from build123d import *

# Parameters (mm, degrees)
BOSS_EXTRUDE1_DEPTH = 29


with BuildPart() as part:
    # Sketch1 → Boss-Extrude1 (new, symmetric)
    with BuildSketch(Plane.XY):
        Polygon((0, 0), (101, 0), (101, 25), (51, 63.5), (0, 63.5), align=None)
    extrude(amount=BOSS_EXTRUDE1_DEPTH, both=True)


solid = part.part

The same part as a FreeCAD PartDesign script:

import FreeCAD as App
import Part
import Sketcher

V = App.Vector


def add_polygon(sketch, points):
    """Adds a closed chain of lines whose ends are joined by coincident constraints."""
    first, n = sketch.GeometryCount, len(points)
    for a, b in zip(points, points[1:] + points[:1]):
        sketch.addGeometry(Part.LineSegment(App.Vector(*a, 0), App.Vector(*b, 0)), False)
    for i in range(n):
        sketch.addConstraint(Sketcher.Constraint("Coincident", first + i, 2, first + (i + 1) % n, 1))

doc = App.newDocument("Part")
body = doc.addObject("PartDesign::Body", "Body")

# Sketch on XY plane
sketch1 = doc.addObject("Sketcher::SketchObject", "Sketch")
body.addObject(sketch1)
sketch1.AttachmentSupport = (doc.XY_Plane, [""])
sketch1.MapMode = "FlatFace"
add_polygon(sketch1, [(0, 0), (101, 0), (101, 25), (51, 64), (0, 64)])  # lines 0-4
sketch1.addConstraint(Sketcher.Constraint("Horizontal", 0))
sketch1.addConstraint(Sketcher.Constraint("Vertical", 1))
sketch1.addConstraint(Sketcher.Constraint("Horizontal", 3))
sketch1.addConstraint(Sketcher.Constraint("Vertical", 4))
sketch1.addConstraint(Sketcher.Constraint("Coincident", 4, 2, -1, 1))
sketch1.addConstraint(Sketcher.Constraint("DistanceX", 0, 1, 0, 2, 101.0))
sketch1.addConstraint(Sketcher.Constraint("DistanceX", 3, 2, 3, 1, 51.0))
sketch1.addConstraint(Sketcher.Constraint("DistanceY", 1, 1, 1, 2, 25.0))
sketch1.addConstraint(Sketcher.Constraint("DistanceY", 4, 2, 4, 1, 63.5))
pad1 = doc.addObject("PartDesign::Pad", "Pad")
body.addObject(pad1)
pad1.Profile = sketch1
pad1.Length = 58
pad1.Midplane = True

doc.recompute()
